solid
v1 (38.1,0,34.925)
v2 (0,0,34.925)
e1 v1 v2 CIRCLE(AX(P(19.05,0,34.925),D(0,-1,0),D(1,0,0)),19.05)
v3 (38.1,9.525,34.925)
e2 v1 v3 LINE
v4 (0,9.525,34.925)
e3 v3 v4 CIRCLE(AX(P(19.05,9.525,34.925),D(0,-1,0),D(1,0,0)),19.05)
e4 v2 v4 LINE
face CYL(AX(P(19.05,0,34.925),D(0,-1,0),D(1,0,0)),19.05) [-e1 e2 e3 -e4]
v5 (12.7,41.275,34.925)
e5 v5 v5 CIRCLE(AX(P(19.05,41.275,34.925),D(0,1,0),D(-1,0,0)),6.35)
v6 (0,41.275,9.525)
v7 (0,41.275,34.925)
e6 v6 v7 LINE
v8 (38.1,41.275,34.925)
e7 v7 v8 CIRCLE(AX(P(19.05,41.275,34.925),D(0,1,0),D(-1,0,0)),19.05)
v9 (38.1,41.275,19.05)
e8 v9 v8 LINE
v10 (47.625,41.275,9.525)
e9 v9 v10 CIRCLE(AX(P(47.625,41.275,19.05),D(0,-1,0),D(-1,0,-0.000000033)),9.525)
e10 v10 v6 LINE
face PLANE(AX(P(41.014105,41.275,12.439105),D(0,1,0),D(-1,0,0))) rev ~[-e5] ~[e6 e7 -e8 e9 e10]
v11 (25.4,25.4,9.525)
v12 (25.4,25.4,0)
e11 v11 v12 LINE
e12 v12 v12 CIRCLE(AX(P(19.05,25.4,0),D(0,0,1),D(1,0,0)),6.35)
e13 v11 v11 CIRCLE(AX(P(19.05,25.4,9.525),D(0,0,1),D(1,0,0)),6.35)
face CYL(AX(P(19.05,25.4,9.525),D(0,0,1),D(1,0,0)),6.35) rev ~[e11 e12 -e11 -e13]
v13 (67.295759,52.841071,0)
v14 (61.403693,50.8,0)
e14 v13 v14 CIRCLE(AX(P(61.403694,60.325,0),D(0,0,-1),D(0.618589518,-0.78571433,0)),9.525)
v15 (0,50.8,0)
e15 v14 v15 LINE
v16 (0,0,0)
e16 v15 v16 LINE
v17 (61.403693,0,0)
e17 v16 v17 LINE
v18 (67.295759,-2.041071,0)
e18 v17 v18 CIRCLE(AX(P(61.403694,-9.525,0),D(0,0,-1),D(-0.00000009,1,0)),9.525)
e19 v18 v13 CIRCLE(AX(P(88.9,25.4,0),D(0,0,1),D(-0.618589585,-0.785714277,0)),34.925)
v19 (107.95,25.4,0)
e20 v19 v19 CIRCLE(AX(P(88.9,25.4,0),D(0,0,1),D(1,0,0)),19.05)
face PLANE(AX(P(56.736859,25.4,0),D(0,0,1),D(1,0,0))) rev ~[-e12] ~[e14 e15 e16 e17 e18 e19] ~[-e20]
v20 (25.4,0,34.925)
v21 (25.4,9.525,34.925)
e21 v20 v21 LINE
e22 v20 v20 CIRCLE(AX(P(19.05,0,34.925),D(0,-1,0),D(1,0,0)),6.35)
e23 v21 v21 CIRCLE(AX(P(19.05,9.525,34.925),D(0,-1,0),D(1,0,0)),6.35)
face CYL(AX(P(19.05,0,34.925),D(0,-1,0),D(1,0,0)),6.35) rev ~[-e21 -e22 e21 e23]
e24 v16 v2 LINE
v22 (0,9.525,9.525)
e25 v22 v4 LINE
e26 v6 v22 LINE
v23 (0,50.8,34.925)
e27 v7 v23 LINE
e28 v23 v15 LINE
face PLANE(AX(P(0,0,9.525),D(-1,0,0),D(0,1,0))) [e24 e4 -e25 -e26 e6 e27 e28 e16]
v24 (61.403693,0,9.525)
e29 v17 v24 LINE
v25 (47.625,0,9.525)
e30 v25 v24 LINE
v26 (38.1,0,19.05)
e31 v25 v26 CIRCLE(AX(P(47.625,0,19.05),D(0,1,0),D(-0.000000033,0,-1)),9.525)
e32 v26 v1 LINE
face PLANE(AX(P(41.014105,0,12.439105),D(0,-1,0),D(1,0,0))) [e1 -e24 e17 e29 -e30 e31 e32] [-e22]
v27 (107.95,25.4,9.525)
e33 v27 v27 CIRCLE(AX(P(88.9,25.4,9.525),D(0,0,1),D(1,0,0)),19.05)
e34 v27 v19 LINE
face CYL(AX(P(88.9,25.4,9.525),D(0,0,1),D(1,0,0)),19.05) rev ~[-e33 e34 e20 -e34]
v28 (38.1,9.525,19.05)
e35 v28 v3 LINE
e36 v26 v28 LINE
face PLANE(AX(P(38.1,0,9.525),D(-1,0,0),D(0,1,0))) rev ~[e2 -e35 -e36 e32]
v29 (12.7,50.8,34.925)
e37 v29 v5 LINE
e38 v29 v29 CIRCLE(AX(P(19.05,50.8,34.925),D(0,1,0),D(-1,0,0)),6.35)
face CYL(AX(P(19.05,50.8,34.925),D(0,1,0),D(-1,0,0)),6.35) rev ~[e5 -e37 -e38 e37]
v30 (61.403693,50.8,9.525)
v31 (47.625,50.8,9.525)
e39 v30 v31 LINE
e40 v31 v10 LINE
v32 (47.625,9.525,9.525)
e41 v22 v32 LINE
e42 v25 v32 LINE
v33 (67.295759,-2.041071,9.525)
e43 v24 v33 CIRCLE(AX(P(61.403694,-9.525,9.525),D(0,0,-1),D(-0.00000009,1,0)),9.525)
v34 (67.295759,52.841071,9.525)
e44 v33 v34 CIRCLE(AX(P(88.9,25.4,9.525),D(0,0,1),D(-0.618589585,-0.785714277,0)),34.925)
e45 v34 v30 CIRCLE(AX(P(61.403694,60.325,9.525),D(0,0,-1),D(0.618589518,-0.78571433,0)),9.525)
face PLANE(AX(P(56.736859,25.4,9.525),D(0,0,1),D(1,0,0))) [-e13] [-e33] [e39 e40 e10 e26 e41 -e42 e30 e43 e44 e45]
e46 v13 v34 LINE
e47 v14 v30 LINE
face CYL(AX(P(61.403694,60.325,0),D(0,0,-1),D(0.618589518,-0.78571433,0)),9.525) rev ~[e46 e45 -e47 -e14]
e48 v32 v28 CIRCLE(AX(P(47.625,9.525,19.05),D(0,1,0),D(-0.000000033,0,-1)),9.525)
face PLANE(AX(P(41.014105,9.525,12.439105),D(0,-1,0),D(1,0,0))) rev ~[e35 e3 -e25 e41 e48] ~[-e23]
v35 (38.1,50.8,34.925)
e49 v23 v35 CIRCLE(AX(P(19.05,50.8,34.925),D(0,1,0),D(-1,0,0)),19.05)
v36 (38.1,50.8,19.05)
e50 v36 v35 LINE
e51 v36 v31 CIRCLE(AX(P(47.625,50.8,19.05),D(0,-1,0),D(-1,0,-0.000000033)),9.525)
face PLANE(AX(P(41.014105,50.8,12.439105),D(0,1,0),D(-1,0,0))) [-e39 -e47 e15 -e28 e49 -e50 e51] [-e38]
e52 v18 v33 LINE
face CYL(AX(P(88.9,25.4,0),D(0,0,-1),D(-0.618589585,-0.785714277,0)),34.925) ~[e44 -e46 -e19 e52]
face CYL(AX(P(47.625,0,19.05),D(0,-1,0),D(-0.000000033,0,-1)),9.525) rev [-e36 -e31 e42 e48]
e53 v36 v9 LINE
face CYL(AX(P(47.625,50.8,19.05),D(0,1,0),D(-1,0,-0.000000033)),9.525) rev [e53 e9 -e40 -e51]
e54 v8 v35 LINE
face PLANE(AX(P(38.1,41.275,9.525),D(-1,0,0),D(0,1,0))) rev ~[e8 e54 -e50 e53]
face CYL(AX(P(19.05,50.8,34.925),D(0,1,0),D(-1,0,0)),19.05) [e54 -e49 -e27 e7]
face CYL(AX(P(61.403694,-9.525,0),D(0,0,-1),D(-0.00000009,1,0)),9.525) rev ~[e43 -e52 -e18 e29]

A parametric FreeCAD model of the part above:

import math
import FreeCAD as App
import Part
import Sketcher
Q = App.Units.Quantity

doc = App.newDocument("Part")
body = doc.addObject("PartDesign::Body", "Body")

sketch1 = doc.addObject("Sketcher::SketchObject", "Sketch")
body.addObject(sketch1)
sketch1.AttachmentSupport = (doc.XY_Plane, [""])
sketch1.MapMode = "FlatFace"
sketch1.addGeometry([
    Part.LineSegment(App.Vector(0, 51, 0), App.Vector(0, 0, 0)),
    Part.LineSegment(App.Vector(0, 0, 0), App.Vector(61, 0, 0)),
    Part.ArcOfCircle(Part.Circle(App.Vector(61, -10, 0), App.Vector(0, 0, 1), 10), math.radians(52), math.radians(90)),
    Part.ArcOfCircle(Part.Circle(App.Vector(89, 25, 0), App.Vector(0, 0, 1), 35), math.radians(-128), math.radians(128)),
    Part.ArcOfCircle(Part.Circle(App.Vector(61, 60, 0), App.Vector(0, 0, 1), 10), math.radians(-90), math.radians(-52)),
    Part.LineSegment(App.Vector(61, 51, 0), App.Vector(0, 51, 0)),
], False)
sketch1.addConstraint([
    Sketcher.Constraint("Coincident", 0, 2, 1, 1),
    Sketcher.Constraint("Tangent", 1, 2, 2, 2),
    Sketcher.Constraint("Tangent", 2, 1, 3, 1),
    Sketcher.Constraint("Tangent", 3, 2, 4, 2),
    Sketcher.Constraint("Tangent", 4, 1, 5, 1),
    Sketcher.Constraint("Coincident", 5, 2, 0, 1),
    Sketcher.Constraint("Vertical", 0),
    Sketcher.Constraint("Horizontal", 1),
    Sketcher.Constraint("Horizontal", 5),
    Sketcher.Constraint("Coincident", 0, 2, -1, 1),
    Sketcher.Constraint("Equal", 2, 4),
    Sketcher.Constraint("Vertical", 2, 3, 4, 3),
    Sketcher.Constraint("DistanceY", 0, 2, 0, 1, Q("2 in")),
    Sketcher.Constraint("Radius", 2, Q("0.375 in")),
    Sketcher.Constraint("Radius", 3, Q("1.375 in")),
    Sketcher.Constraint("DistanceX", -1, 1, 3, 3, Q("3.5 in")),
])
pad1 = doc.addObject("PartDesign::Pad", "Pad")
body.addObject(pad1)
pad1.Profile = sketch1
pad1.Length = Q("0.375 in")

sketch2 = doc.addObject("Sketcher::SketchObject", "Sketch001")
body.addObject(sketch2)
sketch2.AttachmentSupport = (doc.XY_Plane, [""])
sketch2.MapMode = "FlatFace"
sketch2.AttachmentOffset = App.Placement(App.Vector(0, 0, 0.375 * 25.4), App.Rotation())
sketch2.addGeometry(Part.Circle(App.Vector(89, 25, 0), App.Vector(0, 0, 1), 19), False)
sketch2.addConstraint([
    Sketcher.Constraint("Diameter", 0, Q("1.5 in")),
    Sketcher.Constraint("DistanceY", -1, 1, 0, 3, Q("1 in")),
    Sketcher.Constraint("DistanceX", -1, 1, 0, 3, Q("3.5 in")),
])
pocket1 = doc.addObject("PartDesign::Pocket", "Pocket")
body.addObject(pocket1)
pocket1.Profile = sketch2
pocket1.Length = Q("0.375 in")

sketch3 = doc.addObject("Sketcher::SketchObject", "Sketch002")
body.addObject(sketch3)
sketch3.AttachmentSupport = (doc.XY_Plane, [""])
sketch3.MapMode = "FlatFace"
sketch3.AttachmentOffset = App.Placement(App.Vector(0, 0, 0.375 * 25.4), App.Rotation())
sketch3.addGeometry([
    Part.LineSegment(App.Vector(0, 10, 0), App.Vector(0, 0, 0)),
    Part.LineSegment(App.Vector(0, 0, 0), App.Vector(38, 0, 0)),
    Part.LineSegment(App.Vector(38, 0, 0), App.Vector(38, 10, 0)),
    Part.LineSegment(App.Vector(38, 10, 0), App.Vector(0, 10, 0)),
    Part.LineSegment(App.Vector(0, 51, 0), App.Vector(0, 41, 0)),
    Part.LineSegment(App.Vector(0, 41, 0), App.Vector(38, 41, 0)),
    Part.LineSegment(App.Vector(38, 41, 0), App.Vector(38, 51, 0)),
    Part.LineSegment(App.Vector(38, 51, 0), App.Vector(0, 51, 0)),
], False)
sketch3.addConstraint([
    Sketcher.Constraint("Coincident", 0, 2, 1, 1),
    Sketcher.Constraint("Coincident", 1, 2, 2, 1),
    Sketcher.Constraint("Coincident", 2, 2, 3, 1),
    Sketcher.Constraint("Coincident", 3, 2, 0, 1),
    Sketcher.Constraint("Coincident", 4, 2, 5, 1),
    Sketcher.Constraint("Coincident", 5, 2, 6, 1),
    Sketcher.Constraint("Coincident", 6, 2, 7, 1),
    Sketcher.Constraint("Coincident", 7, 2, 4, 1),
    Sketcher.Constraint("Vertical", 0),
    Sketcher.Constraint("Horizontal", 1),
    Sketcher.Constraint("Vertical", 2),
    Sketcher.Constraint("Horizontal", 3),
    Sketcher.Constraint("Vertical", 4),
    Sketcher.Constraint("Horizontal", 5),
    Sketcher.Constraint("Vertical", 6),
    Sketcher.Constraint("Horizontal", 7),
    Sketcher.Constraint("Coincident", 0, 2, -1, 1),
    Sketcher.Constraint("PointOnObject", 4, 2, -2),
    Sketcher.Constraint("Vertical", 2, 2, 5, 2),
    Sketcher.Constraint("Equal", 2, 4),
    Sketcher.Constraint("DistanceX", 1, 1, 1, 2, Q("1.5 in")),
    Sketcher.Constraint("DistanceY", -1, 1, 6, 2, Q("2 in")),
    Sketcher.Constraint("DistanceY", 0, 2, 0, 1, Q("0.375 in")),
])
pad2 = doc.addObject("PartDesign::Pad", "Pad001")
body.addObject(pad2)
pad2.Profile = sketch3
pad2.Length = Q("1 in")

sketch4 = doc.addObject("Sketcher::SketchObject", "Sketch003")
body.addObject(sketch4)
sketch4.AttachmentSupport = (doc.XZ_Plane, [""])
sketch4.MapMode = "FlatFace"
sketch4.AttachmentOffset = App.Placement(App.Vector(0, 0, -2 * 25.4), App.Rotation())
sketch4.addGeometry(Part.Circle(App.Vector(19, 35, 0), App.Vector(0, 0, 1), 19), False)
sketch4.addConstraint([
    Sketcher.Constraint("Diameter", 0, Q("1.5 in")),
    Sketcher.Constraint("DistanceX", -1, 1, 0, 3, Q("0.75 in")),
    Sketcher.Constraint("DistanceY", -1, 1, 0, 3, Q("1.375 in")),
])
pad3 = doc.addObject("PartDesign::Pad", "Pad002")
body.addObject(pad3)
pad3.Profile = sketch4
pad3.Length = Q("0.375 in")

sketch5 = doc.addObject("Sketcher::SketchObject", "Sketch004")
body.addObject(sketch5)
sketch5.AttachmentSupport = (doc.XZ_Plane, [""])
sketch5.MapMode = "FlatFace"
sketch5.AttachmentOffset = App.Placement(App.Vector(0, 0, -2 * 25.4), App.Rotation())
sketch5.addGeometry(Part.Circle(App.Vector(19, 35, 0), App.Vector(0, 0, 1), 6), False)
sketch5.addConstraint([
    Sketcher.Constraint("Diameter", 0, Q("0.5 in")),
    Sketcher.Constraint("DistanceX", -1, 1, 0, 3, Q("0.75 in")),
    Sketcher.Constraint("DistanceY", -1, 1, 0, 3, Q("1.375 in")),
])
pocket2 = doc.addObject("PartDesign::Pocket", "Pocket001")
body.addObject(pocket2)
pocket2.Profile = sketch5
pocket2.Length = Q("0.375 in")
pocket2.Reversed = True

sketch6 = doc.addObject("Sketcher::SketchObject", "Sketch005")
body.addObject(sketch6)
sketch6.AttachmentSupport = (doc.XZ_Plane, [""])
sketch6.MapMode = "FlatFace"
sketch6.addGeometry(Part.Circle(App.Vector(19, 35, 0), App.Vector(0, 0, 1), 19), False)
sketch6.addConstraint([
    Sketcher.Constraint("Diameter", 0, Q("1.5 in")),
    Sketcher.Constraint("DistanceX", -1, 1, 0, 3, Q("0.75 in")),
    Sketcher.Constraint("DistanceY", -1, 1, 0, 3, Q("1.375 in")),
])
pad4 = doc.addObject("PartDesign::Pad", "Pad003")
body.addObject(pad4)
pad4.Profile = sketch6
pad4.Length = Q("0.375 in")
pad4.Reversed = True

sketch7 = doc.addObject("Sketcher::SketchObject", "Sketch006")
body.addObject(sketch7)
sketch7.AttachmentSupport = (doc.XZ_Plane, [""])
sketch7.MapMode = "FlatFace"
sketch7.addGeometry(Part.Circle(App.Vector(19, 35, 0), App.Vector(0, 0, 1), 6), False)
sketch7.addConstraint([
    Sketcher.Constraint("Diameter", 0, Q("0.5 in")),
    Sketcher.Constraint("DistanceX", -1, 1, 0, 3, Q("0.75 in")),
    Sketcher.Constraint("DistanceY", -1, 1, 0, 3, Q("1.375 in")),
])
pocket3 = doc.addObject("PartDesign::Pocket", "Pocket002")
body.addObject(pocket3)
pocket3.Profile = sketch7
pocket3.Length = Q("0.375 in")

sketch8 = doc.addObject("Sketcher::SketchObject", "Sketch007")
body.addObject(sketch8)
sketch8.AttachmentSupport = (doc.XY_Plane, [""])
sketch8.MapMode = "FlatFace"
sketch8.AttachmentOffset = App.Placement(App.Vector(0, 0, 0.375 * 25.4), App.Rotation())
sketch8.addGeometry(Part.Circle(App.Vector(19, 25, 0), App.Vector(0, 0, 1), 6), False)
sketch8.addConstraint([
    Sketcher.Constraint("Diameter", 0, Q("0.5 in")),
    Sketcher.Constraint("DistanceY", -1, 1, 0, 3, Q("1 in")),
    Sketcher.Constraint("DistanceX", -1, 1, 0, 3, Q("0.75 in")),
])
pocket4 = doc.addObject("PartDesign::Pocket", "Pocket003")
body.addObject(pocket4)
pocket4.Profile = sketch8
pocket4.Length = Q("1 in")

sketch9 = doc.addObject("Sketcher::SketchObject", "Sketch008")
body.addObject(sketch9)
sketch9.AttachmentSupport = (doc.XZ_Plane, [""])
sketch9.MapMode = "FlatFace"
sketch9.AttachmentOffset = App.Placement(App.Vector(0, 0, -2 * 25.4), App.Rotation())
sketch9.addGeometry([
    Part.LineSegment(App.Vector(38, 10, 0), App.Vector(38, 19, 0)),
    Part.ArcOfCircle(Part.Circle(App.Vector(48, 19, 0), App.Vector(0, 0, 1), 10), math.radians(-180), math.radians(-90)),
    Part.LineSegment(App.Vector(48, 10, 0), App.Vector(38, 10, 0)),
], False)
sketch9.addConstraint([
    Sketcher.Constraint("Tangent", 0, 2, 1, 1),
    Sketcher.Constraint("Tangent", 1, 2, 2, 1),
    Sketcher.Constraint("Coincident", 2, 2, 0, 1),
    Sketcher.Constraint("Vertical", 0),
    Sketcher.Constraint("Horizontal", 2),
    Sketcher.Constraint("Radius", 1, Q("0.375 in")),
    Sketcher.Constraint("DistanceX", -1, 1, 0, 2, Q("1.5 in")),
    Sketcher.Constraint("DistanceY", -1, 1, 1, 3, Q("0.75 in")),
])
pad5 = doc.addObject("PartDesign::Pad", "Pad004")
body.addObject(pad5)
pad5.Profile = sketch9
pad5.Length = Q("0.375 in")

sketch10 = doc.addObject("Sketcher::SketchObject", "Sketch009")
body.addObject(sketch10)
sketch10.AttachmentSupport = (doc.XZ_Plane, [""])
sketch10.MapMode = "FlatFace"
sketch10.addGeometry([
    Part.ArcOfCircle(Part.Circle(App.Vector(48, 19, 0), App.Vector(0, 0, 1), 10), math.radians(-180), math.radians(-90)),
    Part.LineSegment(App.Vector(38, 19, 0), App.Vector(38, 10, 0)),
    Part.LineSegment(App.Vector(38, 10, 0), App.Vector(48, 10, 0)),
], False)
sketch10.addConstraint([
    Sketcher.Constraint("Tangent", 0, 1, 1, 1),
    Sketcher.Constraint("Coincident", 1, 2, 2, 1),
    Sketcher.Constraint("Tangent", 2, 2, 0, 2),
    Sketcher.Constraint("Vertical", 1),
    Sketcher.Constraint("Horizontal", 2),
    Sketcher.Constraint("Radius", 0, Q("0.375 in")),
    Sketcher.Constraint("DistanceX", -1, 1, 0, 1, Q("1.5 in")),
    Sketcher.Constraint("DistanceY", -1, 1, 0, 3, Q("0.75 in")),
])
pad6 = doc.addObject("PartDesign::Pad", "Pad005")
body.addObject(pad6)
pad6.Profile = sketch10
pad6.Length = Q("0.375 in")
pad6.Reversed = True

doc.recompute()
